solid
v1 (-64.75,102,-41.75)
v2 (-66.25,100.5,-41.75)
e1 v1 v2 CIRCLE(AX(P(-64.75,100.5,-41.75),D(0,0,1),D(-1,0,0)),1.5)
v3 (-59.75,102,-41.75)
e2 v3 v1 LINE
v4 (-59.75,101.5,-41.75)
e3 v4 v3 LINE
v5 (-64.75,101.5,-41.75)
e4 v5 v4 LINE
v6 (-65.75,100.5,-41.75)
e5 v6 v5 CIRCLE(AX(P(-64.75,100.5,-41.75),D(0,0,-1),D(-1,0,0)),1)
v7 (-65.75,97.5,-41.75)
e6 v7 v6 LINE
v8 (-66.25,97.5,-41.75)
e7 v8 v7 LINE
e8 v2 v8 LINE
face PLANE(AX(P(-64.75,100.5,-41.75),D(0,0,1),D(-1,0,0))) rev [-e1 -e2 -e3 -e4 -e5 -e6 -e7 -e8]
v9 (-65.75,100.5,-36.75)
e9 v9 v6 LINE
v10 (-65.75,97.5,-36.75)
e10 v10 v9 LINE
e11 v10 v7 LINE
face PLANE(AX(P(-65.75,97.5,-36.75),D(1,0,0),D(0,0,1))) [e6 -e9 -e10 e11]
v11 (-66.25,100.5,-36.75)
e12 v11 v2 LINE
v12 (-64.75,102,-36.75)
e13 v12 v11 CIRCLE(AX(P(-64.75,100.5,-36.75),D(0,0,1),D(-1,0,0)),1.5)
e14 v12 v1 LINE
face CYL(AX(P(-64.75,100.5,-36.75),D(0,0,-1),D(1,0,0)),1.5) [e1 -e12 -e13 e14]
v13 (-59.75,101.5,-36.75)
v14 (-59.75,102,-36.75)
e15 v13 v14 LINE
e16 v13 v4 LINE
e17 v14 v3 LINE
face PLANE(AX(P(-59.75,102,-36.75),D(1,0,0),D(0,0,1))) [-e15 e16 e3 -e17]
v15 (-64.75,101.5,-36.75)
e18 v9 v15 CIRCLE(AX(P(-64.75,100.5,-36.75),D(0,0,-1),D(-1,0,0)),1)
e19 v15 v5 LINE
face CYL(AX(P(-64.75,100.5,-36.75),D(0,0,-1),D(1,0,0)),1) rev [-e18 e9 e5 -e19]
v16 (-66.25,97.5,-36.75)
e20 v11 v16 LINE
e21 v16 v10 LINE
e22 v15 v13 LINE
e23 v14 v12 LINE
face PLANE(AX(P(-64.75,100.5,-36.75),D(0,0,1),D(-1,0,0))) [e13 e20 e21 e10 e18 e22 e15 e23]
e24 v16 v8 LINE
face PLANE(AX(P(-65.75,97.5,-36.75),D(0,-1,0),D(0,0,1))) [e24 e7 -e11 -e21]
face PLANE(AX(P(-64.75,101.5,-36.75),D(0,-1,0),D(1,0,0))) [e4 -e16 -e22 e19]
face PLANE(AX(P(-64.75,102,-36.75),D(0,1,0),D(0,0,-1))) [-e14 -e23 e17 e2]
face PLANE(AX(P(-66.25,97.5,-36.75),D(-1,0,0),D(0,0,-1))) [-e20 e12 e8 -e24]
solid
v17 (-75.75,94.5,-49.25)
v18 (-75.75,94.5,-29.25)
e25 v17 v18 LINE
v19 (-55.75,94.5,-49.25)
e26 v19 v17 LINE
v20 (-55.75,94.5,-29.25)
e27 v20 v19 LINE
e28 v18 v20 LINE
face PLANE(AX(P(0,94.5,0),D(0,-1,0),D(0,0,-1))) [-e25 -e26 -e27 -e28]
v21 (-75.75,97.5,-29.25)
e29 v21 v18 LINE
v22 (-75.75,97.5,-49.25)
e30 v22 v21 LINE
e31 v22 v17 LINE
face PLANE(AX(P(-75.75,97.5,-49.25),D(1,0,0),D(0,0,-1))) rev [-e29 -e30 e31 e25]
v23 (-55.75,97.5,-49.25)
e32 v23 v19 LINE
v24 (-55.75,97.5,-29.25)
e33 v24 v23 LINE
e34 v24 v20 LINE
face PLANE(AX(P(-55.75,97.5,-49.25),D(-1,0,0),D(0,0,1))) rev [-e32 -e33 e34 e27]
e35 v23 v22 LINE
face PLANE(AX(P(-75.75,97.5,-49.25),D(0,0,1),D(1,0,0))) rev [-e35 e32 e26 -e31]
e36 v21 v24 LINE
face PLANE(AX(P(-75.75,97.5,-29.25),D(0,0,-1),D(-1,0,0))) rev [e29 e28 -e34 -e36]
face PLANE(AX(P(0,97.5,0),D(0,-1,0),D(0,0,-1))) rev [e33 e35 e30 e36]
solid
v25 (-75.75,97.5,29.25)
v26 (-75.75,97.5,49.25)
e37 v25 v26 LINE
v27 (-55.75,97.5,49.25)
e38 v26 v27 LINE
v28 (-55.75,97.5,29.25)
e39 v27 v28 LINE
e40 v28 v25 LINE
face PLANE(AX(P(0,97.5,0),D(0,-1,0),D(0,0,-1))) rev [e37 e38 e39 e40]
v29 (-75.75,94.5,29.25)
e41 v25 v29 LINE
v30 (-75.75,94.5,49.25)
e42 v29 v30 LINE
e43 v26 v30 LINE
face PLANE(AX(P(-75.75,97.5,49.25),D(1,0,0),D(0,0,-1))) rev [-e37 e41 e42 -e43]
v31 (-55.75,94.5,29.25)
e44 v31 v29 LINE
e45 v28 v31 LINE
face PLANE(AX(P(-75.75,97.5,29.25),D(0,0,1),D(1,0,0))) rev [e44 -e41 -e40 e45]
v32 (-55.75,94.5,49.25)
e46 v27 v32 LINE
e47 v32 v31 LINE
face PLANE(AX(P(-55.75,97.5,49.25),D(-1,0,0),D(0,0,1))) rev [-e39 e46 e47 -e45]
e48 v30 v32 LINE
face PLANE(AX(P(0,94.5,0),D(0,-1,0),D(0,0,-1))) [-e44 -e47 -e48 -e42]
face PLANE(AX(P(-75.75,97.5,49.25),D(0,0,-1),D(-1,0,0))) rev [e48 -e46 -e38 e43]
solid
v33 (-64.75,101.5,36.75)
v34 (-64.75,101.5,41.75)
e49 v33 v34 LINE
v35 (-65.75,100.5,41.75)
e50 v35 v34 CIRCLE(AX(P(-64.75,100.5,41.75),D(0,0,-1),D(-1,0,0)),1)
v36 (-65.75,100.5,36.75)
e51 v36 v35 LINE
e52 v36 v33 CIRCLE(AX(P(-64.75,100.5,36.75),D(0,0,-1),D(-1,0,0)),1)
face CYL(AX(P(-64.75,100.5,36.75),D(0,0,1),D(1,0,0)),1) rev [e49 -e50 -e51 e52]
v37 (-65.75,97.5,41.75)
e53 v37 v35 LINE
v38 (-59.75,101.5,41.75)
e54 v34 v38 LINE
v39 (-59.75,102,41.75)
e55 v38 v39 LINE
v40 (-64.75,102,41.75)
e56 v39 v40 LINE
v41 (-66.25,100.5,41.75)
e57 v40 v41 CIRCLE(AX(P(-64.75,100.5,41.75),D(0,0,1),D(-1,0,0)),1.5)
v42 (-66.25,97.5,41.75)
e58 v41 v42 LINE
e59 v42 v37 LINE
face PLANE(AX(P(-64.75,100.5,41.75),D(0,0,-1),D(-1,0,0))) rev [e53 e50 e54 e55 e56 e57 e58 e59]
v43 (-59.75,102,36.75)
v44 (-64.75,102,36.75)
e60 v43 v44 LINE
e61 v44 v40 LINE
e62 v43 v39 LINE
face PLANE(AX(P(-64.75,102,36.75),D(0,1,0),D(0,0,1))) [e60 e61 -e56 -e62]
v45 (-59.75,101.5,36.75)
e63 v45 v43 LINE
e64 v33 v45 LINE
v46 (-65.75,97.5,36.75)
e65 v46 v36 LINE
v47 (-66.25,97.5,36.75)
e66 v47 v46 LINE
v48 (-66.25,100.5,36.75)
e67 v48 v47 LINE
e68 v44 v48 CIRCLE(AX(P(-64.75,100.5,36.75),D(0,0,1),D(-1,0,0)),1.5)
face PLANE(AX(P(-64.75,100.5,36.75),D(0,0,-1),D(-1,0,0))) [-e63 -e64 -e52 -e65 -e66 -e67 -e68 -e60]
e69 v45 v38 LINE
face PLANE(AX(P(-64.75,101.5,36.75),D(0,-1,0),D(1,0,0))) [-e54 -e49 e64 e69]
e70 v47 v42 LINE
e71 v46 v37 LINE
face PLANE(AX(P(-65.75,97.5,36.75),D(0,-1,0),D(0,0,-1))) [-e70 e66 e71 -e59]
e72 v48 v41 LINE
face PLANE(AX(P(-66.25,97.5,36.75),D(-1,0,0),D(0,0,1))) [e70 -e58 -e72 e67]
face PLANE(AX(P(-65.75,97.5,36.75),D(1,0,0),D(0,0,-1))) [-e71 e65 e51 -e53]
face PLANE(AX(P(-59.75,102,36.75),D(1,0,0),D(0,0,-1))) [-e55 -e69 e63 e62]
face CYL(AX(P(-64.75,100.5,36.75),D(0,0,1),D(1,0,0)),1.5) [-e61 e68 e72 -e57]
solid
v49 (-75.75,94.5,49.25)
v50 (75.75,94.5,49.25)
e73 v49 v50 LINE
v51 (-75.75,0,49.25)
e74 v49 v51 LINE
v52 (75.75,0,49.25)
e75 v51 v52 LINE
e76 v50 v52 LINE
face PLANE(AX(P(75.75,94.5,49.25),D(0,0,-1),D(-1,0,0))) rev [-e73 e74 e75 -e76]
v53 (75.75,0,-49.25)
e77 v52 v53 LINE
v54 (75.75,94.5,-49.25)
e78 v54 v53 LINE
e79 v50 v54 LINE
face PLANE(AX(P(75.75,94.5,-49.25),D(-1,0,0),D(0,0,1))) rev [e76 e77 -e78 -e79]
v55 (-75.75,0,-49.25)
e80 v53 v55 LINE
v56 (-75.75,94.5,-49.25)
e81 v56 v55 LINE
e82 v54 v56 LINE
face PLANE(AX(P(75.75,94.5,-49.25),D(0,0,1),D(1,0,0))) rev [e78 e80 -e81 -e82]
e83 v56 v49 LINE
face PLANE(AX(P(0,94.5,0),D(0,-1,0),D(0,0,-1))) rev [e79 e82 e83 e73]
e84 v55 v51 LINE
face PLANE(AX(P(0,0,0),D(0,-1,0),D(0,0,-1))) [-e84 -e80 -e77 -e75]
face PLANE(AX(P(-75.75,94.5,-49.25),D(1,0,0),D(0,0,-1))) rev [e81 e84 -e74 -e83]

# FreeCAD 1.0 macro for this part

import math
import FreeCAD as App
import Part
import Sketcher

V = App.Vector

doc = App.newDocument("Part")
body = doc.addObject("PartDesign::Body", "Body")

# Sketch on XZ plane
sketch1 = body.newObject("Sketcher::SketchObject", "Sketch")
sketch1.AttachmentSupport = (doc.getObject("XZ_Plane"), [""])
sketch1.MapMode = "FlatFace"
sketch1.addGeometry(Part.LineSegment(V(-75.75, -49.25, 0), V(-75.75, 49.25, 0)), False)
sketch1.addGeometry(Part.LineSegment(V(-75.75, 49.25, 0), V(75.75, 49.25, 0)), False)
sketch1.addGeometry(Part.LineSegment(V(75.75, 49.25, 0), V(75.75, -49.25, 0)), False)
sketch1.addGeometry(Part.LineSegment(V(75.75, -49.25, 0), V(-75.75, -49.25, 0)), False)
sketch1.addConstraint(Sketcher.Constraint("Coincident", 0, 2, 1, 1))
sketch1.addConstraint(Sketcher.Constraint("Coincident", 1, 2, 2, 1))
sketch1.addConstraint(Sketcher.Constraint("Coincident", 2, 2, 3, 1))
sketch1.addConstraint(Sketcher.Constraint("Coincident", 3, 2, 0, 1))
sketch1.addConstraint(Sketcher.Constraint("Vertical", 0))
sketch1.addConstraint(Sketcher.Constraint("Horizontal", 1))
sketch1.addConstraint(Sketcher.Constraint("Vertical", 2))
sketch1.addConstraint(Sketcher.Constraint("Horizontal", 3))
sketch1.addConstraint(Sketcher.Constraint("Symmetric", 0, 2, 2, 2, -1, 1))
sketch1.addConstraint(Sketcher.Constraint("DistanceX", 1, 1, 1, 2, 151.5))
sketch1.addConstraint(Sketcher.Constraint("DistanceY", 0, 1, 0, 2, 98.5))
pad1 = body.newObject("PartDesign::Pad", "Pad")
pad1.Profile = sketch1
pad1.Length = 94.5
pad1.Reversed = True
body2 = doc.addObject("PartDesign::Body", "Body001")

# Sketch on XZ plane
sketch2 = body2.newObject("Sketcher::SketchObject", "Sketch001")
sketch2.AttachmentSupport = (doc.getObject("XZ_Plane001"), [""])
sketch2.MapMode = "FlatFace"
sketch2.AttachmentOffset = App.Placement(V(0, 0, -94.5), App.Rotation())
sketch2.addGeometry(Part.LineSegment(V(-75.75, -49.25, 0), V(-75.75, -29.25, 0)), False)
sketch2.addGeometry(Part.LineSegment(V(-75.75, -29.25, 0), V(-55.75, -29.25, 0)), False)
sketch2.addGeometry(Part.LineSegment(V(-55.75, -29.25, 0), V(-55.75, -49.25, 0)), False)
sketch2.addGeometry(Part.LineSegment(V(-55.75, -49.25, 0), V(-75.75, -49.25, 0)), False)
sketch2.addConstraint(Sketcher.Constraint("Coincident", 0, 2, 1, 1))
sketch2.addConstraint(Sketcher.Constraint("Coincident", 1, 2, 2, 1))
sketch2.addConstraint(Sketcher.Constraint("Coincident", 2, 2, 3, 1))
sketch2.addConstraint(Sketcher.Constraint("Coincident", 3, 2, 0, 1))
sketch2.addConstraint(Sketcher.Constraint("Vertical", 0))
sketch2.addConstraint(Sketcher.Constraint("Horizontal", 1))
sketch2.addConstraint(Sketcher.Constraint("Vertical", 2))
sketch2.addConstraint(Sketcher.Constraint("Horizontal", 3))
sketch2.addConstraint(Sketcher.Constraint("Equal", 3, 0))
sketch2.addConstraint(Sketcher.Constraint("DistanceX", 1, 1, 1, 2, 20.0))
sketch2.addConstraint(Sketcher.Constraint("DistanceX", 0, 2, -1, 1, 75.75))
sketch2.addConstraint(Sketcher.Constraint("DistanceY", 0, 2, -1, 1, 29.25))
pad2 = body2.newObject("PartDesign::Pad", "Pad001")
pad2.Profile = sketch2
pad2.Length = 3
pad2.Reversed = True
body3 = doc.addObject("PartDesign::Body", "Body002")

# Sketch on XZ plane
sketch3 = body3.newObject("Sketcher::SketchObject", "Sketch002")
sketch3.AttachmentSupport = (doc.getObject("XZ_Plane002"), [""])
sketch3.MapMode = "FlatFace"
sketch3.AttachmentOffset = App.Placement(V(0, 0, -94.5), App.Rotation())
sketch3.addGeometry(Part.LineSegment(V(-75.75, 29.25, 0), V(-75.75, 49.25, 0)), False)
sketch3.addGeometry(Part.LineSegment(V(-75.75, 49.25, 0), V(-55.75, 49.25, 0)), False)
sketch3.addGeometry(Part.LineSegment(V(-55.75, 49.25, 0), V(-55.75, 29.25, 0)), False)
sketch3.addGeometry(Part.LineSegment(V(-55.75, 29.25, 0), V(-75.75, 29.25, 0)), False)
sketch3.addConstraint(Sketcher.Constraint("Coincident", 0, 2, 1, 1))
sketch3.addConstraint(Sketcher.Constraint("Coincident", 1, 2, 2, 1))
sketch3.addConstraint(Sketcher.Constraint("Coincident", 2, 2, 3, 1))
sketch3.addConstraint(Sketcher.Constraint("Coincident", 3, 2, 0, 1))
sketch3.addConstraint(Sketcher.Constraint("Vertical", 0))
sketch3.addConstraint(Sketcher.Constraint("Horizontal", 1))
sketch3.addConstraint(Sketcher.Constraint("Vertical", 2))
sketch3.addConstraint(Sketcher.Constraint("Horizontal", 3))
sketch3.addConstraint(Sketcher.Constraint("Equal", 3, 0))
sketch3.addConstraint(Sketcher.Constraint("DistanceX", 1, 1, 1, 2, 20.0))
sketch3.addConstraint(Sketcher.Constraint("DistanceX", 0, 2, -1, 1, 75.75))
sketch3.addConstraint(Sketcher.Constraint("DistanceY", -1, 1, 0, 2, 49.25))
pad3 = body3.newObject("PartDesign::Pad", "Pad002")
pad3.Profile = sketch3
pad3.Length = 3
pad3.Reversed = True
body4 = doc.addObject("PartDesign::Body", "Body003")

# Sketch on XY plane
sketch4 = body4.newObject("Sketcher::SketchObject", "Sketch003")
sketch4.AttachmentSupport = (doc.getObject("XY_Plane003"), [""])
sketch4.MapMode = "FlatFace"
sketch4.AttachmentOffset = App.Placement(V(0, 0, 39.25), App.Rotation())
sketch4.addGeometry(Part.LineSegment(V(-65.75, 97.5, 0), V(-65.75, 100.5, 0)), False)
sketch4.addGeometry(Part.ArcOfCircle(Part.Circle(V(-64.75, 100.5, 0), V(0, 0, 1), 1), math.radians(90), math.radians(180)), False)
sketch4.addGeometry(Part.LineSegment(V(-64.75, 101.5, 0), V(-59.75, 101.5, 0)), False)
sketch4.addGeometry(Part.LineSegment(V(-59.75, 101.5, 0), V(-59.75, 102, 0)), False)
sketch4.addGeometry(Part.LineSegment(V(-59.75, 102, 0), V(-64.75, 102, 0)), False)
sketch4.addGeometry(Part.ArcOfCircle(Part.Circle(V(-64.75, 100.5, 0), V(0, 0, 1), 1.5), math.radians(90), math.radians(180)), False)
sketch4.addGeometry(Part.LineSegment(V(-66.25, 100.5, 0), V(-66.25, 97.5, 0)), False)
sketch4.addGeometry(Part.LineSegment(V(-66.25, 97.5, 0), V(-65.75, 97.5, 0)), False)
sketch4.addConstraint(Sketcher.Constraint("Tangent", 0, 2, 1, 2))
sketch4.addConstraint(Sketcher.Constraint("Tangent", 1, 1, 2, 1))
sketch4.addConstraint(Sketcher.Constraint("Coincident", 2, 2, 3, 1))
sketch4.addConstraint(Sketcher.Constraint("Coincident", 3, 2, 4, 1))
sketch4.addConstraint(Sketcher.Constraint("Tangent", 4, 2, 5, 1))
sketch4.addConstraint(Sketcher.Constraint("Tangent", 5, 2, 6, 1))
sketch4.addConstraint(Sketcher.Constraint("Coincident", 6, 2, 7, 1))
sketch4.addConstraint(Sketcher.Constraint("Coincident", 7, 2, 0, 1))
sketch4.addConstraint(Sketcher.Constraint("Vertical", 0))
sketch4.addConstraint(Sketcher.Constraint("Horizontal", 2))
sketch4.addConstraint(Sketcher.Constraint("Vertical", 3))
sketch4.addConstraint(Sketcher.Constraint("Horizontal", 4))
sketch4.addConstraint(Sketcher.Constraint("Vertical", 6))
sketch4.addConstraint(Sketcher.Constraint("Horizontal", 7))
sketch4.addConstraint(Sketcher.Constraint("Coincident", 5, 3, 1, 3))
sketch4.addConstraint(Sketcher.Constraint("Radius", 1, 1.0))
sketch4.addConstraint(Sketcher.Constraint("Radius", 5, 1.5))
sketch4.addConstraint(Sketcher.Constraint("DistanceX", 2, 1, 2, 2, 5.0))
sketch4.addConstraint(Sketcher.Constraint("DistanceY", 0, 1, 0, 2, 3.0))
sketch4.addConstraint(Sketcher.Constraint("DistanceY", -1, 1, 3, 2, 102.0))
sketch4.addConstraint(Sketcher.Constraint("DistanceX", 1, 3, -1, 1, 64.75))
pad4 = body4.newObject("PartDesign::Pad", "Pad003")
pad4.Profile = sketch4
pad4.Type = "TwoLengths"
pad4.Length = 2.5
pad4.Length2 = 2.5
body5 = doc.addObject("PartDesign::Body", "Body004")
doc.recompute()

mirroring = doc.addObject("Part::Mirroring", "Mirroring")
mirroring.Source = body4
mirroring.Base = V(0, 0, 0)
mirroring.Normal = V(0, 0, 1)
body5.BaseFeature = mirroring
doc.recompute()
mirroring.Visibility = False

doc.recompute()
